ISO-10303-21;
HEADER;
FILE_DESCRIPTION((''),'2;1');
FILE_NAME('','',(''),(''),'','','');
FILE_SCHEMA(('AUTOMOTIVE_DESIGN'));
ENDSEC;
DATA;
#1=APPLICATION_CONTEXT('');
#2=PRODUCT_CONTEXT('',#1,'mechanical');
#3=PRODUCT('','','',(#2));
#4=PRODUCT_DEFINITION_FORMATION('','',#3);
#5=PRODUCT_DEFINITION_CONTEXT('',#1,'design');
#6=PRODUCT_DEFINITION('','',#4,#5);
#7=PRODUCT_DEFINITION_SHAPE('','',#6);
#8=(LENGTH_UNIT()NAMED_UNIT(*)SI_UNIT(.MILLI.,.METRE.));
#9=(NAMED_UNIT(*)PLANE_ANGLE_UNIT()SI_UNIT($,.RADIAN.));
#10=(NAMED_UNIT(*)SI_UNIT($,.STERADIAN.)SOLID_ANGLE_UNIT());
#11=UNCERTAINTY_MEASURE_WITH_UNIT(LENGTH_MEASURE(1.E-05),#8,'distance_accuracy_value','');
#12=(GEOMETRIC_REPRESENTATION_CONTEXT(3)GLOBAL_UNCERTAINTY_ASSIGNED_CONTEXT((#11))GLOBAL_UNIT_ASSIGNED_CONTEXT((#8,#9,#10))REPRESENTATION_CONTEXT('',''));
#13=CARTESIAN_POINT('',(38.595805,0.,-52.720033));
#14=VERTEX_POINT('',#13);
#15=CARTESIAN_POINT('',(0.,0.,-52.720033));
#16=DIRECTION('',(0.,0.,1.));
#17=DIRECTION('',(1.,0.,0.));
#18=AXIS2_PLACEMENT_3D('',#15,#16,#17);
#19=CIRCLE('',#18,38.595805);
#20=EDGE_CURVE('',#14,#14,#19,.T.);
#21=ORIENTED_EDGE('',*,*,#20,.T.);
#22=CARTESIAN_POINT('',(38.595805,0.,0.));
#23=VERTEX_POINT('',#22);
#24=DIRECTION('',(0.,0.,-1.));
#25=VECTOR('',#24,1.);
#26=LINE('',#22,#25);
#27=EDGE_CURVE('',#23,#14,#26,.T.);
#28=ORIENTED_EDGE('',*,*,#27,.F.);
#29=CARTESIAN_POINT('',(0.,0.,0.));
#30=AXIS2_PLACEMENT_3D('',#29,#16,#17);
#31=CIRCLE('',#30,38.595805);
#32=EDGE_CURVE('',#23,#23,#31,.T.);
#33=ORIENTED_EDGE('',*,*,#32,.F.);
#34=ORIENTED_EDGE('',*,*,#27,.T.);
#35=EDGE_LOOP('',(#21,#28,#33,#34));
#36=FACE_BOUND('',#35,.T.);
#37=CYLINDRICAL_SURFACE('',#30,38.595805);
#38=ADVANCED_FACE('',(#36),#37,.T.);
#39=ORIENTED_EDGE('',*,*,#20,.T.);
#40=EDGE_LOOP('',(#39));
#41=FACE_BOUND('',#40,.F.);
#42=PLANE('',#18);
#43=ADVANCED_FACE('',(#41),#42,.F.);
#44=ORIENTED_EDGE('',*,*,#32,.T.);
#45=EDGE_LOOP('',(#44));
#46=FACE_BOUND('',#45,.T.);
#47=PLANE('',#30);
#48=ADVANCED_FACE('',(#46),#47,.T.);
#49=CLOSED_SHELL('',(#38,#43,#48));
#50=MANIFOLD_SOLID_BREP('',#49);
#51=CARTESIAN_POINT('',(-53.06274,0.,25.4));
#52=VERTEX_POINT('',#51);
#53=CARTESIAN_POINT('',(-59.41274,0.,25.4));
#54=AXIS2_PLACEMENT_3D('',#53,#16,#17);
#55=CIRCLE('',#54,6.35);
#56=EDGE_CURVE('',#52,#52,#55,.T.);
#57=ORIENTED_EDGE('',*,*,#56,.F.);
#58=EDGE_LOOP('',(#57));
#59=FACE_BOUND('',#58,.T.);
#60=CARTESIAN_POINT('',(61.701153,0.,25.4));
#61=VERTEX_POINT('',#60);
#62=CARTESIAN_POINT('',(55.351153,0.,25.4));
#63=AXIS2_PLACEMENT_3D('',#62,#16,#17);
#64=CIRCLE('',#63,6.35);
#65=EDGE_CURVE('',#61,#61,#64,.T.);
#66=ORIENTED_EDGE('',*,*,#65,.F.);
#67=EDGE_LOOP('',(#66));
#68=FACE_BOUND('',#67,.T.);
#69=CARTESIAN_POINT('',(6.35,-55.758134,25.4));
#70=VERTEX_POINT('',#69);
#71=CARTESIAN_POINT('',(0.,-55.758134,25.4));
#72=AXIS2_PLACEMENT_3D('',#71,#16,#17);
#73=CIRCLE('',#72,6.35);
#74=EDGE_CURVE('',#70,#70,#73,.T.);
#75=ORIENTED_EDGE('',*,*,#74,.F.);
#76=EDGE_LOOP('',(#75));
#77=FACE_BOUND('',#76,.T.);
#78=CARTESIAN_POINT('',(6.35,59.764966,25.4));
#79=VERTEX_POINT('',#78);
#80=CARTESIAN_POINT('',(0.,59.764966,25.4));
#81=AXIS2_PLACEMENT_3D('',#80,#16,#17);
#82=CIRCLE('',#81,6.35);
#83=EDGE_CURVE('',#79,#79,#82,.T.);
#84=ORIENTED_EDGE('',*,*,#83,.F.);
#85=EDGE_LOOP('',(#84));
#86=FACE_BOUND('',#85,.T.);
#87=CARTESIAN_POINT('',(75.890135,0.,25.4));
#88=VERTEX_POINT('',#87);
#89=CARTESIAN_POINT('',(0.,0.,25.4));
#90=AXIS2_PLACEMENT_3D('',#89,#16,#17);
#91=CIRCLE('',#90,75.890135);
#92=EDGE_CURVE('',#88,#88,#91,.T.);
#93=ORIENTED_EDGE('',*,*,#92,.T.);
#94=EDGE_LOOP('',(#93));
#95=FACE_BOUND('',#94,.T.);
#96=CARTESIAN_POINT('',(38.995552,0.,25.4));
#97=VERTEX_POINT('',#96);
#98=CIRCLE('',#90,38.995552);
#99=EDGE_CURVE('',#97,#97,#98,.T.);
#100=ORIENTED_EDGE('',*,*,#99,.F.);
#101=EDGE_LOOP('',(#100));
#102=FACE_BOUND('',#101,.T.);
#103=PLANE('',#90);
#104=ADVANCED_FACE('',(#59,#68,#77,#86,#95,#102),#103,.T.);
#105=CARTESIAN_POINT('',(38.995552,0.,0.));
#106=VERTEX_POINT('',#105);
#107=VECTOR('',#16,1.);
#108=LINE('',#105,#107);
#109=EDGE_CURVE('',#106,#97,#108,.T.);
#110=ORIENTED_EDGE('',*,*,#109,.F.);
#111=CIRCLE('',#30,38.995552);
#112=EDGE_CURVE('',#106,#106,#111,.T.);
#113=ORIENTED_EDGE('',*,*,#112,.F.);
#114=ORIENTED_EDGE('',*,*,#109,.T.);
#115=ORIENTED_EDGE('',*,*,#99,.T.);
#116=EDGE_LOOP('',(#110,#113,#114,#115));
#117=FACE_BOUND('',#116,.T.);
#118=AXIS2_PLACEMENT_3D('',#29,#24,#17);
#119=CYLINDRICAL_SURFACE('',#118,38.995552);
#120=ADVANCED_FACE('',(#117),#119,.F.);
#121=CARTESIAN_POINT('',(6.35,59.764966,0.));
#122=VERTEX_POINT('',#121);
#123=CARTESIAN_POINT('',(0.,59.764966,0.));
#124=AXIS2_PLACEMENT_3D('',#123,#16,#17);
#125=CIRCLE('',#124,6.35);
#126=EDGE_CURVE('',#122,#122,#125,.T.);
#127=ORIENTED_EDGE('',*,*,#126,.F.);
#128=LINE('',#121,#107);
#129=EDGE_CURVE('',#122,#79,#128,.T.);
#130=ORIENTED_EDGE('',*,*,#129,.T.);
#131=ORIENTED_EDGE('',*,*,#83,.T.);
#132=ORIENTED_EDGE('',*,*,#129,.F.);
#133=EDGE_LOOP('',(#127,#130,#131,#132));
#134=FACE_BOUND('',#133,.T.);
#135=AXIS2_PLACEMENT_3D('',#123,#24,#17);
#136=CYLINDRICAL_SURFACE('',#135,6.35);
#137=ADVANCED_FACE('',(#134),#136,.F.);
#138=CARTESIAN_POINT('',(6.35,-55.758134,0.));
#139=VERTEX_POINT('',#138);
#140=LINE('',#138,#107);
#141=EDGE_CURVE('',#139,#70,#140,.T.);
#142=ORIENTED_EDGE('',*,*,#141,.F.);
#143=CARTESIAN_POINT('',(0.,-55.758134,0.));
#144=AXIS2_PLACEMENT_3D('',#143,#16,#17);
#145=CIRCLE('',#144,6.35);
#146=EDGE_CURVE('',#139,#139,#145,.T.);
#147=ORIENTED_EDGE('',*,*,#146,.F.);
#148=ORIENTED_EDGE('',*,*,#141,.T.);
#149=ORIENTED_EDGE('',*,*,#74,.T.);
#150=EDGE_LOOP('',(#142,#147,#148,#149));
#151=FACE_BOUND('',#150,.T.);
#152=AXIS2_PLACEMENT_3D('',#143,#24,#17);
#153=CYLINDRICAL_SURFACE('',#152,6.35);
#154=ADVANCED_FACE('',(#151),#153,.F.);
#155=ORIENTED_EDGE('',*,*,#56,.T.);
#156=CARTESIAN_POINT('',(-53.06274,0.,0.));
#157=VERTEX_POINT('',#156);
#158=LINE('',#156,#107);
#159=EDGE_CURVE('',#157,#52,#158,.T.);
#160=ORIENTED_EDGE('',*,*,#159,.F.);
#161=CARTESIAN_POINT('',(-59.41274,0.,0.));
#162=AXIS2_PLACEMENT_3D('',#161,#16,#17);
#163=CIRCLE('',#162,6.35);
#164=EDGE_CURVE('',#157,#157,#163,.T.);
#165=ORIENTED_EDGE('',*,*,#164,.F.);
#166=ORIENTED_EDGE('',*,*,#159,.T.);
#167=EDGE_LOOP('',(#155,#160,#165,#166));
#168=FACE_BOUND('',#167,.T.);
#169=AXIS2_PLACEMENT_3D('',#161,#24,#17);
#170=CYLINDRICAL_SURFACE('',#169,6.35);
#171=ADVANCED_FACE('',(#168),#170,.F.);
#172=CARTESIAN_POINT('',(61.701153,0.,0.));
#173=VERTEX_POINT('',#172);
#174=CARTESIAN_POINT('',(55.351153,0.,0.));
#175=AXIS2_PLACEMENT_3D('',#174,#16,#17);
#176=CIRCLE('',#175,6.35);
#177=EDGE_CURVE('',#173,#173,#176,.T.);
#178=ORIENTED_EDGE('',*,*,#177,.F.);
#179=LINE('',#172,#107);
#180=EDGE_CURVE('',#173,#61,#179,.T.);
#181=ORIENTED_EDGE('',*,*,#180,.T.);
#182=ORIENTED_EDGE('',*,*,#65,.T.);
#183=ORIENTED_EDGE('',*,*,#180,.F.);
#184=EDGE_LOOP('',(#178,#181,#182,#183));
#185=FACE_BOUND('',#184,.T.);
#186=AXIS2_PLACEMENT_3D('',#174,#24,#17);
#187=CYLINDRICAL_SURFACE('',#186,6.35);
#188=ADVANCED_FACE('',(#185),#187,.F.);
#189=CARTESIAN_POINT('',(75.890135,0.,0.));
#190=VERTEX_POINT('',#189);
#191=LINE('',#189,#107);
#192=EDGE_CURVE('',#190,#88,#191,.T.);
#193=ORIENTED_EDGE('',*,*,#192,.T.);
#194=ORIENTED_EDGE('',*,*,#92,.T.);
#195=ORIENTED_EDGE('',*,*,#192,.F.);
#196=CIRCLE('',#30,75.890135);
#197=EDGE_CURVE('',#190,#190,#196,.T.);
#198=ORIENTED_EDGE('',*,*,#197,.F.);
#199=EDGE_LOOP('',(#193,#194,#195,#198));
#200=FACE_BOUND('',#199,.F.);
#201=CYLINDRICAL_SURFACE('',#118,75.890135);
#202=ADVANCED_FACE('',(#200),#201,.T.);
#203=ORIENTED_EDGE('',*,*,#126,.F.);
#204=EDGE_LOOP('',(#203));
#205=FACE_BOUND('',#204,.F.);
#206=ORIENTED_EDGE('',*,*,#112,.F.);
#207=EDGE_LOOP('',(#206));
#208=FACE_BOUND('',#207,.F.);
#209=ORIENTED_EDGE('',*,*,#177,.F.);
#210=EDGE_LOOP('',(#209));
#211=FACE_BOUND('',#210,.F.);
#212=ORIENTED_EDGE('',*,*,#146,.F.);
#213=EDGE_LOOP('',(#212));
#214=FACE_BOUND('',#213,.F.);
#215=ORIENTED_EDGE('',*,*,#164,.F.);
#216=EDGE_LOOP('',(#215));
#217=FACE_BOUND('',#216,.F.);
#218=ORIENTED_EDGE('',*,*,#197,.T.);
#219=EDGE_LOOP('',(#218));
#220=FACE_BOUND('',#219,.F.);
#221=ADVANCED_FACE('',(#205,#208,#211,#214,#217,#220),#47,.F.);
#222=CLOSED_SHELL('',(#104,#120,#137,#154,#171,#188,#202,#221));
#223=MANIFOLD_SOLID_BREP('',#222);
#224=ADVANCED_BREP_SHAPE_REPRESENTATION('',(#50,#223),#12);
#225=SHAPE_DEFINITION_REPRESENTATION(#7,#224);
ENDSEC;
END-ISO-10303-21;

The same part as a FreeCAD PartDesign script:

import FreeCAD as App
import Part
import Sketcher
from FreeCAD import Vector
Q = App.Units.Quantity

doc = App.newDocument("Part")
body = doc.addObject("PartDesign::Body", "Body")

# Sketch on XY plane
sketch1 = body.newObject("Sketcher::SketchObject", "Sketch")
sketch1.AttachmentSupport = (doc.getObject("XY_Plane"), [""])
sketch1.MapMode = "FlatFace"
sketch1.addGeometry([
    Part.Circle(Vector(0, 0, 0), Vector(0, 0, 1), 76),  # 0
    Part.Circle(Vector(-59, 0, 0), Vector(0, 0, 1), 6),  # 1
    Part.Circle(Vector(0, -56, 0), Vector(0, 0, 1), 6),  # 2
    Part.Circle(Vector(0, 0, 0), Vector(0, 0, 1), 39),  # 3
    Part.Circle(Vector(55, 0, 0), Vector(0, 0, 1), 6),  # 4
    Part.Circle(Vector(0, 60, 0), Vector(0, 0, 1), 6),  # 5
], False)
sketch1.addConstraint([
    Sketcher.Constraint("Coincident", 0, 3, -1, 1),
    Sketcher.Constraint("Coincident", 3, 3, -1, 1),
    Sketcher.Constraint("Equal", 1, 2),
    Sketcher.Constraint("Equal", 2, 4),
    Sketcher.Constraint("Equal", 4, 5),
    Sketcher.Constraint("PointOnObject", 1, 3, -1),
    Sketcher.Constraint("PointOnObject", 2, 3, -2),
    Sketcher.Constraint("PointOnObject", 4, 3, -1),
    Sketcher.Constraint("PointOnObject", 5, 3, -2),
    Sketcher.Constraint("Diameter", 1, Q("0.5 in")),
    Sketcher.Constraint("Diameter", 0, Q("151.78027 mm")),
    Sketcher.Constraint("Diameter", 3, Q("77.991104 mm")),
    Sketcher.Constraint("DistanceY", 2, 3, 5, 3, Q("115.5231 mm")),
    Sketcher.Constraint("DistanceX", 1, 3, -1, 1, Q("59.41274 mm")),
    Sketcher.Constraint("DistanceY", 2, 3, -1, 1, Q("55.758134 mm")),
    Sketcher.Constraint("DistanceX", -1, 1, 4, 3, Q("55.351153 mm")),
])
pad1 = body.newObject("PartDesign::Pad", "Pad")
pad1.Profile = sketch1
pad1.Length = Q("1 in")
body2 = doc.addObject("PartDesign::Body", "Body001")

# Sketch on XY plane
sketch2 = body2.newObject("Sketcher::SketchObject", "Sketch001")
sketch2.AttachmentSupport = (doc.getObject("XY_Plane001"), [""])
sketch2.MapMode = "FlatFace"
sketch2.addGeometry(Part.Circle(Vector(0, 0, 0), Vector(0, 0, 1), 39), False)
sketch2.addConstraint([
    Sketcher.Constraint("Coincident", 0, 3, -1, 1),
    Sketcher.Constraint("Diameter", 0, Q("77.19161 mm")),
])
pad2 = body2.newObject("PartDesign::Pad", "Pad001")
pad2.Profile = sketch2
pad2.Length = 52.720033
pad2.Reversed = True

doc.recompute()
